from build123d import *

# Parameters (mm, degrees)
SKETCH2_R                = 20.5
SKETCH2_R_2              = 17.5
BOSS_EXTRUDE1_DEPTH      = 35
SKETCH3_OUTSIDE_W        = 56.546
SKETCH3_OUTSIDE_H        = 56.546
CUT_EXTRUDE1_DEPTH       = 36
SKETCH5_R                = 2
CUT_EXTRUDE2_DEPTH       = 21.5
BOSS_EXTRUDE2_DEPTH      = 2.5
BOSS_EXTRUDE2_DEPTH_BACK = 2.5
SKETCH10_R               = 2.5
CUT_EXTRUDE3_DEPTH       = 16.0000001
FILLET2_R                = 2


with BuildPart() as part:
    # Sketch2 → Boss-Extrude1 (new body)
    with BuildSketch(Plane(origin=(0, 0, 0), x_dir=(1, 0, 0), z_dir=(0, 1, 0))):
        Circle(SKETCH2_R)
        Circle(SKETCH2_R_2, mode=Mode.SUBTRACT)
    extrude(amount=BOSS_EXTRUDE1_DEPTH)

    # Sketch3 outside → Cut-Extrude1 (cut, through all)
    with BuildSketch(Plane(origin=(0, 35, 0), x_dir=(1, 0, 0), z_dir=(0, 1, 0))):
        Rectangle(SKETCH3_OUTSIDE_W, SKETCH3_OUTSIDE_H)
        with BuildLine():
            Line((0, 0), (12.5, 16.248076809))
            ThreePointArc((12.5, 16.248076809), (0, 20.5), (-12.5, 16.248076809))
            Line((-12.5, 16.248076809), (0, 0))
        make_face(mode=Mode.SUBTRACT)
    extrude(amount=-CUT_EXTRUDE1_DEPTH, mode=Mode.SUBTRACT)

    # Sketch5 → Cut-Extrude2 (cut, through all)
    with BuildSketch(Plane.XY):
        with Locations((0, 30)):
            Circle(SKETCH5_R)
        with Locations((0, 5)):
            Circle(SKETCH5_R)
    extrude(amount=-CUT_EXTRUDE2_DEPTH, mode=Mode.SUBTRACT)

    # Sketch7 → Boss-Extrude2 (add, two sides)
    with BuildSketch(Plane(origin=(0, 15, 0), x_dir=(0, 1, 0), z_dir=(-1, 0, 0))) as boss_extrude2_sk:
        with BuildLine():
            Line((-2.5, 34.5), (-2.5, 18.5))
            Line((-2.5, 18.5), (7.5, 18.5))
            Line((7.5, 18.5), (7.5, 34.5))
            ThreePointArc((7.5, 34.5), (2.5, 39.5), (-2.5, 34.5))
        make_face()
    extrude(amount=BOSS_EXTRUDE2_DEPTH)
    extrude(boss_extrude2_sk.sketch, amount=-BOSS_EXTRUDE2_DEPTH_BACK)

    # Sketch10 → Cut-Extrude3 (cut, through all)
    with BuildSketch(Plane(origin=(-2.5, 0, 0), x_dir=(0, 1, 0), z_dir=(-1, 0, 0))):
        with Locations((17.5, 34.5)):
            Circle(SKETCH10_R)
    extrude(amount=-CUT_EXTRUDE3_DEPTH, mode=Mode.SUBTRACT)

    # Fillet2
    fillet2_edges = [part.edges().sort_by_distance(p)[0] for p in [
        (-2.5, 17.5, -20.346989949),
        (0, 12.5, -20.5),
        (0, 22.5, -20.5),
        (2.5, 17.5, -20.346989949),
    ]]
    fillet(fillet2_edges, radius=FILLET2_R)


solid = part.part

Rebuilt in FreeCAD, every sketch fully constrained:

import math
import FreeCAD as App
import Part
import Sketcher

V = App.Vector


def edges_at(feature, points):
    """Names of the edges that pass closest to the given points."""
    edges = feature.Shape.Edges
    near = lambda p: min(range(len(edges)), key=lambda i: edges[i].distToShape(Part.Vertex(*p))[0])
    return sorted({f"Edge{near(p) + 1}" for p in points})

doc = App.newDocument("Part")
body = doc.addObject("PartDesign::Body", "Body")

# Sketch on XZ plane
sketch1 = body.newObject("Sketcher::SketchObject", "Sketch")
sketch1.AttachmentSupport = (doc.getObject("XZ_Plane"), [""])
sketch1.MapMode = "FlatFace"
sketch1.addGeometry([
    Part.Circle(V(0, 0, 0), V(0, 0, 1), 20),
    Part.Circle(V(0, 0, 0), V(0, 0, 1), 18),
], False)
sketch1.addConstraint([
    Sketcher.Constraint("Coincident", 0, 3, -1, 1),
    Sketcher.Constraint("Coincident", 1, 3, -1, 1),
    Sketcher.Constraint("Diameter", 0, 41.0),
    Sketcher.Constraint("Diameter", 1, 35.0),
])
pad1 = body.newObject("PartDesign::Pad", "Pad")
pad1.Profile = sketch1
pad1.Length = 35
pad1.Reversed = True

# Sketch on XZ plane
sketch2 = body.newObject("Sketcher::SketchObject", "Sketch001")
sketch2.AttachmentSupport = (doc.getObject("XZ_Plane"), [""])
sketch2.MapMode = "FlatFace"
sketch2.AttachmentOffset = App.Placement(V(0, 0, -35), App.Rotation())
sketch2.addGeometry([
    Part.LineSegment(V(-28, -28, 0), V(-28, 28, 0)),  # 0
    Part.LineSegment(V(-28, 28, 0), V(28, 28, 0)),  # 1
    Part.LineSegment(V(28, 28, 0), V(28, -28, 0)),  # 2
    Part.LineSegment(V(28, -28, 0), V(-28, -28, 0)),  # 3
    Part.LineSegment(V(12, -16, 0), V(0, 0, 0)),  # 4
    Part.LineSegment(V(0, 0, 0), V(-12, -16, 0)),  # 5
    Part.ArcOfCircle(Part.Circle(V(0, 0, 0), V(0, 0, 1), 20), math.radians(-128), math.radians(-52)),  # 6
], False)
sketch2.addConstraint([
    Sketcher.Constraint("Coincident", 0, 2, 1, 1),
    Sketcher.Constraint("Coincident", 1, 2, 2, 1),
    Sketcher.Constraint("Coincident", 2, 2, 3, 1),
    Sketcher.Constraint("Coincident", 3, 2, 0, 1),
    Sketcher.Constraint("Coincident", 4, 2, 5, 1),
    Sketcher.Constraint("Coincident", 5, 2, 6, 1),
    Sketcher.Constraint("Coincident", 6, 2, 4, 1),
    Sketcher.Constraint("Vertical", 0),
    Sketcher.Constraint("Horizontal", 1),
    Sketcher.Constraint("Vertical", 2),
    Sketcher.Constraint("Horizontal", 3),
    Sketcher.Constraint("Coincident", 6, 3, -1, 1),
    Sketcher.Constraint("Coincident", 4, 2, -1, 1),
    Sketcher.Constraint("Symmetric", 0, 2, 2, 2, -1, 1),
    Sketcher.Constraint("Horizontal", 5, 2, 6, 2),
    Sketcher.Constraint("Equal", 3, 0),
    Sketcher.Constraint("Radius", 6, 20.5),
    Sketcher.Constraint("DistanceX", 5, 2, 6, 2, 25.0),
    Sketcher.Constraint("DistanceX", 1, 1, 1, 2, 56.546),
])
pocket1 = body.newObject("PartDesign::Pocket", "Pocket")
pocket1.Profile = sketch2
pocket1.Type = "ThroughAll"
pocket1.Reversed = True

# Sketch on XY plane
sketch3 = body.newObject("Sketcher::SketchObject", "Sketch002")
sketch3.AttachmentSupport = (doc.getObject("XY_Plane"), [""])
sketch3.MapMode = "FlatFace"
sketch3.addGeometry([
    Part.Circle(V(0, 30, 0), V(0, 0, 1), 2),
    Part.Circle(V(0, 5, 0), V(0, 0, 1), 2),
], False)
sketch3.addConstraint([
    Sketcher.Constraint("Equal", 0, 1),
    Sketcher.Constraint("PointOnObject", 0, 3, -2),
    Sketcher.Constraint("PointOnObject", 1, 3, -2),
    Sketcher.Constraint("Diameter", 0, 4.0),
    Sketcher.Constraint("DistanceY", -1, 1, 0, 3, 30.0),
    Sketcher.Constraint("DistanceY", -1, 1, 1, 3, 5.0),
])
pocket2 = body.newObject("PartDesign::Pocket", "Pocket001")
pocket2.Profile = sketch3
pocket2.Type = "ThroughAll"

# Sketch on YZ plane
sketch4 = body.newObject("Sketcher::SketchObject", "Sketch003")
sketch4.AttachmentSupport = (doc.getObject("YZ_Plane"), [""])
sketch4.MapMode = "FlatFace"
sketch4.addGeometry([
    Part.LineSegment(V(12, -34, 0), V(12, -18, 0)),
    Part.LineSegment(V(12, -18, 0), V(22, -18, 0)),
    Part.LineSegment(V(22, -18, 0), V(22, -34, 0)),
    Part.ArcOfCircle(Part.Circle(V(18, -34, 0), V(0, 0, 1), 5), math.radians(180), math.radians(360)),
], False)
sketch4.addConstraint([
    Sketcher.Constraint("Coincident", 0, 2, 1, 1),
    Sketcher.Constraint("Coincident", 1, 2, 2, 1),
    Sketcher.Constraint("Tangent", 2, 2, 3, 2),
    Sketcher.Constraint("Tangent", 3, 1, 0, 1),
    Sketcher.Constraint("Vertical", 0),
    Sketcher.Constraint("Horizontal", 1),
    Sketcher.Constraint("Vertical", 2),
    Sketcher.Constraint("Radius", 3, 5.0),
    Sketcher.Constraint("DistanceY", 0, 1, 0, 2, 16.0),
    Sketcher.Constraint("DistanceX", -1, 1, 3, 3, 17.5),
    Sketcher.Constraint("DistanceY", 3, 3, -1, 1, 34.5),
])
pad2 = body.newObject("PartDesign::Pad", "Pad001")
pad2.Profile = sketch4
pad2.Type = "TwoLengths"
pad2.Length = 2.5
pad2.Length2 = 2.5
pad2.Reversed = True

# Sketch on YZ plane
sketch5 = body.newObject("Sketcher::SketchObject", "Sketch004")
sketch5.AttachmentSupport = (doc.getObject("YZ_Plane"), [""])
sketch5.MapMode = "FlatFace"
sketch5.AttachmentOffset = App.Placement(V(0, 0, -2.5), App.Rotation())
sketch5.addGeometry(Part.Circle(V(17.5, -34.5, 0), V(0, 0, 1), 2.5), False)
sketch5.addConstraint([
    Sketcher.Constraint("Diameter", 0, 5.0),
    Sketcher.Constraint("DistanceX", -1, 1, 0, 3, 17.5),
    Sketcher.Constraint("DistanceY", 0, 3, -1, 1, 34.5),
])
pocket3 = body.newObject("PartDesign::Pocket", "Pocket002")
pocket3.Profile = sketch5
pocket3.Type = "ThroughAll"
pocket3.Reversed = True
doc.recompute()

fillet = body.newObject("PartDesign::Fillet", "Fillet")
fillet.Base = (pocket3, edges_at(pocket3, [
    (-2.5, 17.5, -20.347),
    (0, 12.5, -20.5),
    (0, 22.5, -20.5),
    (2.5, 17.5, -20.347),
]))
fillet.Radius = 2

doc.recompute()
